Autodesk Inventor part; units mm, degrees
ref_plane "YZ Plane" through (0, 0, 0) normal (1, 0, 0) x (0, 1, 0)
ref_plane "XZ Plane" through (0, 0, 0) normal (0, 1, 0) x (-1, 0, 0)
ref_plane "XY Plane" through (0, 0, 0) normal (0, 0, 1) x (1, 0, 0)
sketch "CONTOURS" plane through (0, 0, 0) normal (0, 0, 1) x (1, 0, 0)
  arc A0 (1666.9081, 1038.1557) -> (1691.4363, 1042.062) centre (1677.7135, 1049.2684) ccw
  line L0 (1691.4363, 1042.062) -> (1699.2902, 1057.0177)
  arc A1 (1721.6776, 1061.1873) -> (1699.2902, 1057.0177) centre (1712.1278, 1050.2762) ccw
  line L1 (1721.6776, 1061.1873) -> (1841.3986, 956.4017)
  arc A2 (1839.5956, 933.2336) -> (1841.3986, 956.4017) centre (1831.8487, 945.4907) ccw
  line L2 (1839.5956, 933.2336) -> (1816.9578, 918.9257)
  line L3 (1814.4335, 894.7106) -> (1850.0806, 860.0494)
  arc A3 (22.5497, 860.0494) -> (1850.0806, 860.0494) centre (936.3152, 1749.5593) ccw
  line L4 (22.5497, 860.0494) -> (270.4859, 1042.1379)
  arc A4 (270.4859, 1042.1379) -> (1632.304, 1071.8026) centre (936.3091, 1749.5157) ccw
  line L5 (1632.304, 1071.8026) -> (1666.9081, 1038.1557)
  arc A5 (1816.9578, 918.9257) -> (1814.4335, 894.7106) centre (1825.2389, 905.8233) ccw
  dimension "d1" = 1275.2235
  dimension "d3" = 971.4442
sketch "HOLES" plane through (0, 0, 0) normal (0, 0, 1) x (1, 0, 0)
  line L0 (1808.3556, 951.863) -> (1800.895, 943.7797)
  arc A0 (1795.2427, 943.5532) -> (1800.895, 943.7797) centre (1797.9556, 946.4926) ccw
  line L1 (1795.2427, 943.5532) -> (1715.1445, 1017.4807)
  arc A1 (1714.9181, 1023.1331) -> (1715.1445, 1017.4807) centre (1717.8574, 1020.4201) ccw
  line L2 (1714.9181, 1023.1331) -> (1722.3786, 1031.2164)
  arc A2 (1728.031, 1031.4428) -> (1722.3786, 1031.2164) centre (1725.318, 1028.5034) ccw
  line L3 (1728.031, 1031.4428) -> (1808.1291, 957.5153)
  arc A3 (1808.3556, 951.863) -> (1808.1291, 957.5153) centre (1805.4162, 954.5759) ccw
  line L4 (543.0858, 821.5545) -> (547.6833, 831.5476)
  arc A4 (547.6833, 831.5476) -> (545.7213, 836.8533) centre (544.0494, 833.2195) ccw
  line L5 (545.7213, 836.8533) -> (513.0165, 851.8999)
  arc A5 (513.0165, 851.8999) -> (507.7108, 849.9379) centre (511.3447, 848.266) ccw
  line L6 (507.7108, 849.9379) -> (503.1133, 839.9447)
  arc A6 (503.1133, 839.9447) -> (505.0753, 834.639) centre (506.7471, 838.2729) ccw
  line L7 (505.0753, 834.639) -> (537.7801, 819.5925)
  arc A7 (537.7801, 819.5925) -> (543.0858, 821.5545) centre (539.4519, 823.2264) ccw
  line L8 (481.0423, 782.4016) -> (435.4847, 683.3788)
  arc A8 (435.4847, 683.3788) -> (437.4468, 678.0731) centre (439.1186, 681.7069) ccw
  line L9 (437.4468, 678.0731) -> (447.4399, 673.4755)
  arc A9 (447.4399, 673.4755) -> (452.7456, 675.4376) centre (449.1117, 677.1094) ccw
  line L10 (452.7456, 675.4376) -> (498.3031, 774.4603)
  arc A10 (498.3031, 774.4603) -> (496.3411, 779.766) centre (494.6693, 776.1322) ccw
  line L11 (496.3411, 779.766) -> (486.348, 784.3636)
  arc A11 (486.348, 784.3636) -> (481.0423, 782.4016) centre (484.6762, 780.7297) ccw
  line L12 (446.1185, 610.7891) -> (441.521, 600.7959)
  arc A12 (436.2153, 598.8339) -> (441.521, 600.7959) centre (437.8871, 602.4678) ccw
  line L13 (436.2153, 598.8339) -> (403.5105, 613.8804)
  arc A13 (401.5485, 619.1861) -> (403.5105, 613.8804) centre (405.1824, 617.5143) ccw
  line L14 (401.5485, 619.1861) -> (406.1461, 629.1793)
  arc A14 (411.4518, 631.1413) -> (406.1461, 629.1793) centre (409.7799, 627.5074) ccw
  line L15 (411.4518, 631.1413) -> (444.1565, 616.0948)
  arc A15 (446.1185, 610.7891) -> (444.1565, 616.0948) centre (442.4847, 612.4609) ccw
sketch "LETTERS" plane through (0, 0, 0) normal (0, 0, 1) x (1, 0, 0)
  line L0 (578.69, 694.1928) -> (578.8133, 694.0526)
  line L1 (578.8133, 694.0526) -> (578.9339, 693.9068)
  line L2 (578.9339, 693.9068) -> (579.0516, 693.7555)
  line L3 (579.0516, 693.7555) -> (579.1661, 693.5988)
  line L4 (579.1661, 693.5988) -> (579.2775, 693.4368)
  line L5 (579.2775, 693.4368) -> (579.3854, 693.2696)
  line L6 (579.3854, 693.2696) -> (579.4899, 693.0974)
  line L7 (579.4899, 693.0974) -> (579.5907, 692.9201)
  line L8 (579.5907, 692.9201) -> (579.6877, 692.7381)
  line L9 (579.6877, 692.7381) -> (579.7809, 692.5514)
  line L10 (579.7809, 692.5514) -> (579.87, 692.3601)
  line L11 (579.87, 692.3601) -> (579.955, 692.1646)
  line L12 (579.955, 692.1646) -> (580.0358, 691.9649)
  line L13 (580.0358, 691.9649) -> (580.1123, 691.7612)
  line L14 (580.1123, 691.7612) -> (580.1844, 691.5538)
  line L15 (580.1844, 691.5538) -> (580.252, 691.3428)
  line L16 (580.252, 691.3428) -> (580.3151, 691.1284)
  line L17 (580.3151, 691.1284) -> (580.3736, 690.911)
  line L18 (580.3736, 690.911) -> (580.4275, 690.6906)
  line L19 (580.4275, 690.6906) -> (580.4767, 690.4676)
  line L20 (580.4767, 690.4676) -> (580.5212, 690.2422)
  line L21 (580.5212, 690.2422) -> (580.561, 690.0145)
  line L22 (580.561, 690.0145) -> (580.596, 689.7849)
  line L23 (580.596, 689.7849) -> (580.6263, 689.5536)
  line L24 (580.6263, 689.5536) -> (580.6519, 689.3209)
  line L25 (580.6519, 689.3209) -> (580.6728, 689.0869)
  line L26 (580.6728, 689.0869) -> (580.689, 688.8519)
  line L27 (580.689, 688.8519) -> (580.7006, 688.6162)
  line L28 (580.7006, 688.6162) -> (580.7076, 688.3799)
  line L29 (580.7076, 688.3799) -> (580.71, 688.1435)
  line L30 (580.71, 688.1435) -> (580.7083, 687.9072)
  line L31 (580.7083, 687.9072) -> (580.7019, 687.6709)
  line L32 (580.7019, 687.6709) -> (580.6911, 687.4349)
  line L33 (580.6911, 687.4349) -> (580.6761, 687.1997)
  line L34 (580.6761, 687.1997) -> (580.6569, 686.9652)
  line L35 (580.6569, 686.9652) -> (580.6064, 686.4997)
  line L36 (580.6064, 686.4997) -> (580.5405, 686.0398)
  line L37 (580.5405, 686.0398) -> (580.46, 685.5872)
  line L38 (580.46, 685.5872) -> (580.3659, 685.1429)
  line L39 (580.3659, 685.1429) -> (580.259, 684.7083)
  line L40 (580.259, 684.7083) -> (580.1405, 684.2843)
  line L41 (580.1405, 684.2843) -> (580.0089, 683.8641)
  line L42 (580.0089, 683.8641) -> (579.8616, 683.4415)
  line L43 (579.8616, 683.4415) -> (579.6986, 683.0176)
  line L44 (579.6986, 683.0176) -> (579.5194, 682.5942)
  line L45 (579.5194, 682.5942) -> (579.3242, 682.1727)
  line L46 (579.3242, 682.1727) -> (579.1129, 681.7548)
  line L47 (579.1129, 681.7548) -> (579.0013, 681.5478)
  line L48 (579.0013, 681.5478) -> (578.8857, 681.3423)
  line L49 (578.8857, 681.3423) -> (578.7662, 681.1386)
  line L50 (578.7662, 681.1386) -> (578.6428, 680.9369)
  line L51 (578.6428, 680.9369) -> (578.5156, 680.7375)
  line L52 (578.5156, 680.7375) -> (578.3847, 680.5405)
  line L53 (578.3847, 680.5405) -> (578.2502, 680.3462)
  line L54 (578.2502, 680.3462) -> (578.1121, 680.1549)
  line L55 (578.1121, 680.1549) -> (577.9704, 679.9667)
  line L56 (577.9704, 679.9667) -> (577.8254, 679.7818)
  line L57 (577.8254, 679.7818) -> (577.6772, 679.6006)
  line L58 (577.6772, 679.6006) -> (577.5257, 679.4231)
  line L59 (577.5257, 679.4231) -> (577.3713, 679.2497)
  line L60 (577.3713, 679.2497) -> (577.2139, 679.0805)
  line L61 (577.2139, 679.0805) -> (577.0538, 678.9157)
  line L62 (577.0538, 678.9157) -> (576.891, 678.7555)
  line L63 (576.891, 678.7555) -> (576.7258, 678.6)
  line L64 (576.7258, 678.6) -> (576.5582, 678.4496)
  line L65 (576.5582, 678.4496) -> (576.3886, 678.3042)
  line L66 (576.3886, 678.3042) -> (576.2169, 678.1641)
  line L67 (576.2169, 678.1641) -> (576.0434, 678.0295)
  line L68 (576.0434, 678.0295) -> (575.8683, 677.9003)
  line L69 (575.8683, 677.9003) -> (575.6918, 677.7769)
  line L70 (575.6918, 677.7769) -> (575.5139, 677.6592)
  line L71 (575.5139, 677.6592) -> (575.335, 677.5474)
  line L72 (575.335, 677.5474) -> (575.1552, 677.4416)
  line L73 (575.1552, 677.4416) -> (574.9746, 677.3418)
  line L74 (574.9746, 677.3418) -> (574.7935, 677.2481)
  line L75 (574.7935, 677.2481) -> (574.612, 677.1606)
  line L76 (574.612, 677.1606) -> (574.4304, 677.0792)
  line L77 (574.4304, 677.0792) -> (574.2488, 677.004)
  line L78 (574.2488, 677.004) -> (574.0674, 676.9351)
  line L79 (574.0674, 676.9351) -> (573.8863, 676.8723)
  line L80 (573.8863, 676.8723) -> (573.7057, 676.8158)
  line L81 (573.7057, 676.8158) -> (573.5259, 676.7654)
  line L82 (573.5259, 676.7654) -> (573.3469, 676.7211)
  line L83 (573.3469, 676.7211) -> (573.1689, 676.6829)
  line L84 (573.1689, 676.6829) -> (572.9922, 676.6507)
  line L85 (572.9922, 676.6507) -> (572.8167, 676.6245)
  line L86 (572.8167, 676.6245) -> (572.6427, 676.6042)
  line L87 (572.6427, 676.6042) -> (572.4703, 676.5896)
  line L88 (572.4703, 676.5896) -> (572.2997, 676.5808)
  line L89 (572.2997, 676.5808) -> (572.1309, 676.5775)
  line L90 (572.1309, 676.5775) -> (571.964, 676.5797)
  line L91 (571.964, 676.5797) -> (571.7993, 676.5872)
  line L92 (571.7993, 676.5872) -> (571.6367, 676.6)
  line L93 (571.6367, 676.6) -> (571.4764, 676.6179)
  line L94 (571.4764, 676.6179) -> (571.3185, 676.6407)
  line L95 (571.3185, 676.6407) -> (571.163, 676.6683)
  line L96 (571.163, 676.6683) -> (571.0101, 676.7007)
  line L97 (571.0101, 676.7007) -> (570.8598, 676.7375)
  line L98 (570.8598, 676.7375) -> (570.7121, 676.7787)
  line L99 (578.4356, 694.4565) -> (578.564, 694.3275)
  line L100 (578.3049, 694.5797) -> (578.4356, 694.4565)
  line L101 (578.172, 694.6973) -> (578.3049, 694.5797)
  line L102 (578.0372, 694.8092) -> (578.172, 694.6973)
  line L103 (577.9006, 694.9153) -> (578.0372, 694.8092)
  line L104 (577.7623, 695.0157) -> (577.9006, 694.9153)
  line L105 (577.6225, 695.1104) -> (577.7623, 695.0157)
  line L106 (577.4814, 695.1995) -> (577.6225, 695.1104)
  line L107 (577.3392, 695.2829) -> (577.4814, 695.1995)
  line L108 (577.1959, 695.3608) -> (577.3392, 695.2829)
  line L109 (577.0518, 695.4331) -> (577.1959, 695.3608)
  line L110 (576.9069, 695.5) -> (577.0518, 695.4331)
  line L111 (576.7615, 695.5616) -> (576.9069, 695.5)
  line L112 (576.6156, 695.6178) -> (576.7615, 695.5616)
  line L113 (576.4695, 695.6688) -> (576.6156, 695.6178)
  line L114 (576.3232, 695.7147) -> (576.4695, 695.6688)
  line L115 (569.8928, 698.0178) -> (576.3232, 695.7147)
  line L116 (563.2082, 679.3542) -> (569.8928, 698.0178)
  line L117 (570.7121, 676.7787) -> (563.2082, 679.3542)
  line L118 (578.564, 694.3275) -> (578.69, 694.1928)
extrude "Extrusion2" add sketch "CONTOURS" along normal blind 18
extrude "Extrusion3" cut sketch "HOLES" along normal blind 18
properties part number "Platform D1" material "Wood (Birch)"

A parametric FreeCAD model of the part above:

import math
import FreeCAD as App
import Part
import Sketcher
from FreeCAD import Vector

doc = App.newDocument("Part")
params = doc.addObject("Spreadsheet::Sheet", "Params")
for row, (alias, value) in enumerate([
    ("sketch1_radius", "15.5 mm"),
    ("sketch1_radius2", "14.5 mm"),
    ("sketch1_width", "9.55 mm"),
    ("pad1_length", "18 mm"),
    ("sketch2_radius", "4 mm"),
    ("sketch2_length", "11 mm"),
    ("sketch2_length2", "109 mm"),
    ("sketch2_length3", "36 mm"),
    ("pocket1_length", "18 mm"),
], start=1):
    params.set(f"A{row}", alias)
    params.set(f"B{row}", "=" + value)
    params.setAlias(f"B{row}", alias)

body = doc.addObject("PartDesign::Body", "Body")

# Sketch on XY plane
sketch1 = body.newObject("Sketcher::SketchObject", "Sketch")
sketch1.AttachmentSupport = (doc.getObject("XY_Plane"), [""])
sketch1.MapMode = "FlatFace"
sketch1.addGeometry([
    Part.ArcOfCircle(Part.Circle(Vector(1678, 1049, 0), Vector(0, 0, 1), 15), math.radians(-134), math.radians(-28)),  # 0
    Part.LineSegment(Vector(1667, 1038, 0), Vector(1632, 1072, 0)),  # 1
    Part.ArcOfCircle(Part.Circle(Vector(936, 1750, 0), Vector(0, 0, 1), 971), math.radians(-133), math.radians(-44)),  # 2
    Part.LineSegment(Vector(270, 1042, 0), Vector(23, 860, 0)),  # 3
    Part.ArcOfCircle(Part.Circle(Vector(936, 1750, 0), Vector(0, 0, 1), 1275), math.radians(-136), math.radians(-44)),  # 4
    Part.LineSegment(Vector(1850, 860, 0), Vector(1814, 895, 0)),  # 5
    Part.ArcOfCircle(Part.Circle(Vector(1825, 906, 0), Vector(0, 0, 1), 15), math.radians(122), math.radians(226)),  # 6
    Part.LineSegment(Vector(1817, 919, 0), Vector(1840, 933, 0)),  # 7
    Part.ArcOfCircle(Part.Circle(Vector(1832, 945, 0), Vector(0, 0, 1), 15), math.radians(-58), math.radians(49)),  # 8
    Part.LineSegment(Vector(1841, 956, 0), Vector(1722, 1061, 0)),  # 9
    Part.ArcOfCircle(Part.Circle(Vector(1712, 1050, 0), Vector(0, 0, 1), 15), math.radians(49), math.radians(152)),  # 10
    Part.LineSegment(Vector(1699, 1057, 0), Vector(1691, 1042, 0)),  # 11
], False)
sketch1.addConstraint([
    Sketcher.Constraint("Tangent", 0, 1, 1, 1),
    Sketcher.Constraint("Coincident", 1, 2, 2, 2),
    Sketcher.Constraint("Coincident", 2, 1, 3, 1),
    Sketcher.Constraint("Coincident", 3, 2, 4, 1),
    Sketcher.Constraint("Coincident", 4, 2, 5, 1),
    Sketcher.Constraint("Tangent", 5, 2, 6, 2),
    Sketcher.Constraint("Tangent", 6, 1, 7, 1),
    Sketcher.Constraint("Tangent", 7, 2, 8, 1),
    Sketcher.Constraint("Tangent", 8, 2, 9, 1),
    Sketcher.Constraint("Tangent", 9, 2, 10, 1),
    Sketcher.Constraint("Tangent", 10, 2, 11, 1),
    Sketcher.Constraint("Tangent", 11, 2, 0, 2),
    Sketcher.Constraint("Equal", 0, 6),
    Sketcher.Constraint("Equal", 8, 10),
    Sketcher.Constraint("Parallel", 1, 5),
    Sketcher.Constraint("Radius", 0, 15.5),
    Sketcher.Constraint("Radius", 2, 971.4442),
    Sketcher.Constraint("Radius", 4, 1275.2236),
    Sketcher.Constraint("Radius", 8, 14.5),
    Sketcher.Constraint("DistanceY", 0, 1, 2, 3, 711.36),
    Sketcher.Constraint("DistanceY", 3, 2, 4, 3, 889.51),
    Sketcher.Constraint("DistanceY", 5, 2, 8, 3, 50.78),
    Sketcher.Constraint("DistanceX", 10, 3, 6, 1, 104.83),
    Sketcher.Constraint("DistanceX", 8, 3, 8, 2, 9.55),
    Sketcher.Constraint("Distance", 9, 159.101),
    Sketcher.Constraint("DistanceX", -1, 1, 2, 3, 936.309),
    Sketcher.Constraint("DistanceX", -1, 1, 6, 3, 1825.239),
    Sketcher.Constraint("DistanceX", -1, 1, 0, 1, 1666.908),
    Sketcher.Constraint("DistanceX", -1, 1, 1, 2, 1632.304),
    Sketcher.Constraint("DistanceY", -1, 1, 11, 2, 1042.062),
    Sketcher.Constraint("DistanceX", 2, 3, 4, 3, 0.006),
    Sketcher.Constraint("DistanceY", 0, 3, 4, 3, 700.291),
    Sketcher.Constraint("DistanceY", 6, 3, 0, 3, 143.445),
    Sketcher.Constraint("Distance", 3, 307.6176),
])
sketch1.setExpression("Constraints[15]", "Params.sketch1_radius")
sketch1.setExpression("Constraints[18]", "Params.sketch1_radius2")
sketch1.setExpression("Constraints[23]", "Params.sketch1_width")
pad1 = body.newObject("PartDesign::Pad", "Pad")
pad1.Profile = sketch1
pad1.setExpression("Length", "Params.pad1_length")

# Sketch on XY plane
sketch2 = body.newObject("Sketcher::SketchObject", "Sketch001")
sketch2.AttachmentSupport = (doc.getObject("XY_Plane"), [""])
sketch2.MapMode = "FlatFace"
sketch2.addGeometry([
    Part.LineSegment(Vector(1800.9, 943.8, 0), Vector(1808.4, 951.9, 0)),  # 0
    Part.ArcOfCircle(Part.Circle(Vector(1805.4, 954.6, 0), Vector(0, 0, 1), 4), math.radians(-43), math.radians(47)),  # 1
    Part.LineSegment(Vector(1808.1, 957.5, 0), Vector(1728, 1031.4, 0)),  # 2
    Part.ArcOfCircle(Part.Circle(Vector(1725.3, 1028.5, 0), Vector(0, 0, 1), 4), math.radians(47), math.radians(137)),  # 3
    Part.LineSegment(Vector(1722.4, 1031.2, 0), Vector(1714.9, 1023.1, 0)),  # 4
    Part.ArcOfCircle(Part.Circle(Vector(1717.9, 1020.4, 0), Vector(0, 0, 1), 4), math.radians(137), math.radians(227)),  # 5
    Part.LineSegment(Vector(1715.1, 1017.5, 0), Vector(1795.2, 943.6, 0)),  # 6
    Part.ArcOfCircle(Part.Circle(Vector(1798, 946.5, 0), Vector(0, 0, 1), 4), math.radians(-133), math.radians(-43)),  # 7
    Part.ArcOfCircle(Part.Circle(Vector(539.5, 823.2, 0), Vector(0, 0, 1), 4), math.radians(-115), math.radians(-25)),  # 8
    Part.LineSegment(Vector(543.1, 821.6, 0), Vector(547.7, 831.5, 0)),  # 9
    Part.ArcOfCircle(Part.Circle(Vector(544, 833.2, 0), Vector(0, 0, 1), 4), math.radians(-25), math.radians(65)),  # 10
    Part.LineSegment(Vector(545.7, 836.9, 0), Vector(513, 851.9, 0)),  # 11
    Part.ArcOfCircle(Part.Circle(Vector(511.3, 848.3, 0), Vector(0, 0, 1), 4), math.radians(65), math.radians(155)),  # 12
    Part.LineSegment(Vector(507.7, 849.9, 0), Vector(503.1, 839.9, 0)),  # 13
    Part.ArcOfCircle(Part.Circle(Vector(506.7, 838.3, 0), Vector(0, 0, 1), 4), math.radians(155), math.radians(245)),  # 14
    Part.LineSegment(Vector(505.1, 834.6, 0), Vector(537.8, 819.6, 0)),  # 15
    Part.ArcOfCircle(Part.Circle(Vector(484.7, 780.7, 0), Vector(0, 0, 1), 4), math.radians(65), math.radians(155)),  # 16
    Part.LineSegment(Vector(481, 782.4, 0), Vector(435.5, 683.4, 0)),  # 17
    Part.ArcOfCircle(Part.Circle(Vector(439.1, 681.7, 0), Vector(0, 0, 1), 4), math.radians(155), math.radians(245)),  # 18
    Part.LineSegment(Vector(437.4, 678.1, 0), Vector(447.4, 673.5, 0)),  # 19
    Part.ArcOfCircle(Part.Circle(Vector(449.1, 677.1, 0), Vector(0, 0, 1), 4), math.radians(-115), math.radians(-25)),  # 20
    Part.LineSegment(Vector(452.7, 675.4, 0), Vector(498.3, 774.5, 0)),  # 21
    Part.ArcOfCircle(Part.Circle(Vector(494.7, 776.1, 0), Vector(0, 0, 1), 4), math.radians(-25), math.radians(65)),  # 22
    Part.LineSegment(Vector(496.3, 779.8, 0), Vector(486.3, 784.4, 0)),  # 23
    Part.LineSegment(Vector(441.5, 600.8, 0), Vector(446.1, 610.8, 0)),  # 24
    Part.ArcOfCircle(Part.Circle(Vector(442.5, 612.5, 0), Vector(0, 0, 1), 4), math.radians(-25), math.radians(65)),  # 25
    Part.LineSegment(Vector(444.2, 616.1, 0), Vector(411.5, 631.1, 0)),  # 26
    Part.ArcOfCircle(Part.Circle(Vector(409.8, 627.5, 0), Vector(0, 0, 1), 4), math.radians(65), math.radians(155)),  # 27
    Part.LineSegment(Vector(406.1, 629.2, 0), Vector(401.5, 619.2, 0)),  # 28
    Part.ArcOfCircle(Part.Circle(Vector(405.2, 617.5, 0), Vector(0, 0, 1), 4), math.radians(155), math.radians(245)),  # 29
    Part.LineSegment(Vector(403.5, 613.9, 0), Vector(436.2, 598.8, 0)),  # 30
    Part.ArcOfCircle(Part.Circle(Vector(437.9, 602.5, 0), Vector(0, 0, 1), 4), math.radians(-115), math.radians(-25)),  # 31
], False)
sketch2.addConstraint([
    Sketcher.Constraint("Tangent", 0, 2, 1, 1),
    Sketcher.Constraint("Tangent", 1, 2, 2, 1),
    Sketcher.Constraint("Tangent", 2, 2, 3, 1),
    Sketcher.Constraint("Tangent", 3, 2, 4, 1),
    Sketcher.Constraint("Tangent", 4, 2, 5, 1),
    Sketcher.Constraint("Tangent", 5, 2, 6, 1),
    Sketcher.Constraint("Tangent", 6, 2, 7, 1),
    Sketcher.Constraint("Tangent", 7, 2, 0, 1),
    Sketcher.Constraint("Tangent", 8, 2, 9, 1),
    Sketcher.Constraint("Tangent", 9, 2, 10, 1),
    Sketcher.Constraint("Tangent", 10, 2, 11, 1),
    Sketcher.Constraint("Tangent", 11, 2, 12, 1),
    Sketcher.Constraint("Tangent", 12, 2, 13, 1),
    Sketcher.Constraint("Tangent", 13, 2, 14, 1),
    Sketcher.Constraint("Tangent", 14, 2, 15, 1),
    Sketcher.Constraint("Tangent", 15, 2, 8, 1),
    Sketcher.Constraint("Tangent", 16, 2, 17, 1),
    Sketcher.Constraint("Tangent", 17, 2, 18, 1),
    Sketcher.Constraint("Tangent", 18, 2, 19, 1),
    Sketcher.Constraint("Tangent", 19, 2, 20, 1),
    Sketcher.Constraint("Tangent", 20, 2, 21, 1),
    Sketcher.Constraint("Tangent", 21, 2, 22, 1),
    Sketcher.Constraint("Tangent", 22, 2, 23, 1),
    Sketcher.Constraint("Tangent", 23, 2, 16, 1),
    Sketcher.Constraint("Tangent", 24, 2, 25, 1),
    Sketcher.Constraint("Tangent", 25, 2, 26, 1),
    Sketcher.Constraint("Tangent", 26, 2, 27, 1),
    Sketcher.Constraint("Tangent", 27, 2, 28, 1),
    Sketcher.Constraint("Tangent", 28, 2, 29, 1),
    Sketcher.Constraint("Tangent", 29, 2, 30, 1),
    Sketcher.Constraint("Tangent", 30, 2, 31, 1),
    Sketcher.Constraint("Tangent", 31, 2, 24, 1),
    Sketcher.Constraint("Equal", 1, 3),
    Sketcher.Constraint("Equal", 3, 5),
    Sketcher.Constraint("Equal", 5, 7),
    Sketcher.Constraint("Equal", 7, 8),
    Sketcher.Constraint("Equal", 8, 10),
    Sketcher.Constraint("Equal", 10, 12),
    Sketcher.Constraint("Equal", 12, 14),
    Sketcher.Constraint("Equal", 14, 16),
    Sketcher.Constraint("Equal", 16, 18),
    Sketcher.Constraint("Equal", 18, 20),
    Sketcher.Constraint("Equal", 20, 22),
    Sketcher.Constraint("Equal", 22, 25),
    Sketcher.Constraint("Equal", 25, 27),
    Sketcher.Constraint("Equal", 27, 29),
    Sketcher.Constraint("Equal", 29, 31),
    Sketcher.Constraint("Perpendicular", 0, 2),
    Sketcher.Constraint("Perpendicular", 2, 4),
    Sketcher.Constraint("Perpendicular", 4, 6),
    Sketcher.Constraint("Perpendicular", 9, 11),
    Sketcher.Constraint("Perpendicular", 11, 13),
    Sketcher.Constraint("Perpendicular", 13, 15),
    Sketcher.Constraint("Perpendicular", 15, 17),
    Sketcher.Constraint("Perpendicular", 17, 19),
    Sketcher.Constraint("Perpendicular", 19, 21),
    Sketcher.Constraint("Perpendicular", 21, 23),
    Sketcher.Constraint("Perpendicular", 23, 24),
    Sketcher.Constraint("Perpendicular", 24, 26),
    Sketcher.Constraint("Perpendicular", 26, 28),
    Sketcher.Constraint("Perpendicular", 28, 30),
    Sketcher.Constraint("Equal", 4, 9),
    Sketcher.Constraint("Equal", 6, 17),
    Sketcher.Constraint("Equal", 13, 19),
    Sketcher.Constraint("Equal", 23, 24),
    Sketcher.Constraint("Equal", 15, 26),
    Sketcher.Constraint("Radius", 1, 4.0),
    Sketcher.Constraint("Distance", 0, 11.0),
    Sketcher.Constraint("Distance", 2, 109.0),
    Sketcher.Constraint("Distance", 11, 36.0),
    Sketcher.Constraint("DistanceX", 17, 2, 25, 3, 7.0),
    Sketcher.Constraint("DistanceY", -1, 1, 11, 2, 851.9),
    Sketcher.Constraint("DistanceX", 7, 3, 0, 2, 10.4),
    Sketcher.Constraint("DistanceY", -1, 1, 5, 3, 1020.42),
    Sketcher.Constraint("DistanceX", -1, 1, 27, 3, 409.78),
    Sketcher.Constraint("DistanceX", -1, 1, 15, 2, 537.78),
    Sketcher.Constraint("DistanceX", -1, 1, 19, 2, 447.44),
    Sketcher.Constraint("DistanceX", -1, 1, 3, 3, 1725.318),
    Sketcher.Constraint("DistanceY", -1, 1, 18, 3, 681.707),
    Sketcher.Constraint("DistanceY", -1, 1, 25, 3, 612.461),
])
sketch2.setExpression("Constraints[66]", "Params.sketch2_radius")
sketch2.setExpression("Constraints[67]", "Params.sketch2_length")
sketch2.setExpression("Constraints[68]", "Params.sketch2_length2")
sketch2.setExpression("Constraints[69]", "Params.sketch2_length3")
pocket1 = body.newObject("PartDesign::Pocket", "Pocket")
pocket1.Profile = sketch2
pocket1.setExpression("Length", "Params.pocket1_length")
pocket1.Reversed = True

doc.recompute()
